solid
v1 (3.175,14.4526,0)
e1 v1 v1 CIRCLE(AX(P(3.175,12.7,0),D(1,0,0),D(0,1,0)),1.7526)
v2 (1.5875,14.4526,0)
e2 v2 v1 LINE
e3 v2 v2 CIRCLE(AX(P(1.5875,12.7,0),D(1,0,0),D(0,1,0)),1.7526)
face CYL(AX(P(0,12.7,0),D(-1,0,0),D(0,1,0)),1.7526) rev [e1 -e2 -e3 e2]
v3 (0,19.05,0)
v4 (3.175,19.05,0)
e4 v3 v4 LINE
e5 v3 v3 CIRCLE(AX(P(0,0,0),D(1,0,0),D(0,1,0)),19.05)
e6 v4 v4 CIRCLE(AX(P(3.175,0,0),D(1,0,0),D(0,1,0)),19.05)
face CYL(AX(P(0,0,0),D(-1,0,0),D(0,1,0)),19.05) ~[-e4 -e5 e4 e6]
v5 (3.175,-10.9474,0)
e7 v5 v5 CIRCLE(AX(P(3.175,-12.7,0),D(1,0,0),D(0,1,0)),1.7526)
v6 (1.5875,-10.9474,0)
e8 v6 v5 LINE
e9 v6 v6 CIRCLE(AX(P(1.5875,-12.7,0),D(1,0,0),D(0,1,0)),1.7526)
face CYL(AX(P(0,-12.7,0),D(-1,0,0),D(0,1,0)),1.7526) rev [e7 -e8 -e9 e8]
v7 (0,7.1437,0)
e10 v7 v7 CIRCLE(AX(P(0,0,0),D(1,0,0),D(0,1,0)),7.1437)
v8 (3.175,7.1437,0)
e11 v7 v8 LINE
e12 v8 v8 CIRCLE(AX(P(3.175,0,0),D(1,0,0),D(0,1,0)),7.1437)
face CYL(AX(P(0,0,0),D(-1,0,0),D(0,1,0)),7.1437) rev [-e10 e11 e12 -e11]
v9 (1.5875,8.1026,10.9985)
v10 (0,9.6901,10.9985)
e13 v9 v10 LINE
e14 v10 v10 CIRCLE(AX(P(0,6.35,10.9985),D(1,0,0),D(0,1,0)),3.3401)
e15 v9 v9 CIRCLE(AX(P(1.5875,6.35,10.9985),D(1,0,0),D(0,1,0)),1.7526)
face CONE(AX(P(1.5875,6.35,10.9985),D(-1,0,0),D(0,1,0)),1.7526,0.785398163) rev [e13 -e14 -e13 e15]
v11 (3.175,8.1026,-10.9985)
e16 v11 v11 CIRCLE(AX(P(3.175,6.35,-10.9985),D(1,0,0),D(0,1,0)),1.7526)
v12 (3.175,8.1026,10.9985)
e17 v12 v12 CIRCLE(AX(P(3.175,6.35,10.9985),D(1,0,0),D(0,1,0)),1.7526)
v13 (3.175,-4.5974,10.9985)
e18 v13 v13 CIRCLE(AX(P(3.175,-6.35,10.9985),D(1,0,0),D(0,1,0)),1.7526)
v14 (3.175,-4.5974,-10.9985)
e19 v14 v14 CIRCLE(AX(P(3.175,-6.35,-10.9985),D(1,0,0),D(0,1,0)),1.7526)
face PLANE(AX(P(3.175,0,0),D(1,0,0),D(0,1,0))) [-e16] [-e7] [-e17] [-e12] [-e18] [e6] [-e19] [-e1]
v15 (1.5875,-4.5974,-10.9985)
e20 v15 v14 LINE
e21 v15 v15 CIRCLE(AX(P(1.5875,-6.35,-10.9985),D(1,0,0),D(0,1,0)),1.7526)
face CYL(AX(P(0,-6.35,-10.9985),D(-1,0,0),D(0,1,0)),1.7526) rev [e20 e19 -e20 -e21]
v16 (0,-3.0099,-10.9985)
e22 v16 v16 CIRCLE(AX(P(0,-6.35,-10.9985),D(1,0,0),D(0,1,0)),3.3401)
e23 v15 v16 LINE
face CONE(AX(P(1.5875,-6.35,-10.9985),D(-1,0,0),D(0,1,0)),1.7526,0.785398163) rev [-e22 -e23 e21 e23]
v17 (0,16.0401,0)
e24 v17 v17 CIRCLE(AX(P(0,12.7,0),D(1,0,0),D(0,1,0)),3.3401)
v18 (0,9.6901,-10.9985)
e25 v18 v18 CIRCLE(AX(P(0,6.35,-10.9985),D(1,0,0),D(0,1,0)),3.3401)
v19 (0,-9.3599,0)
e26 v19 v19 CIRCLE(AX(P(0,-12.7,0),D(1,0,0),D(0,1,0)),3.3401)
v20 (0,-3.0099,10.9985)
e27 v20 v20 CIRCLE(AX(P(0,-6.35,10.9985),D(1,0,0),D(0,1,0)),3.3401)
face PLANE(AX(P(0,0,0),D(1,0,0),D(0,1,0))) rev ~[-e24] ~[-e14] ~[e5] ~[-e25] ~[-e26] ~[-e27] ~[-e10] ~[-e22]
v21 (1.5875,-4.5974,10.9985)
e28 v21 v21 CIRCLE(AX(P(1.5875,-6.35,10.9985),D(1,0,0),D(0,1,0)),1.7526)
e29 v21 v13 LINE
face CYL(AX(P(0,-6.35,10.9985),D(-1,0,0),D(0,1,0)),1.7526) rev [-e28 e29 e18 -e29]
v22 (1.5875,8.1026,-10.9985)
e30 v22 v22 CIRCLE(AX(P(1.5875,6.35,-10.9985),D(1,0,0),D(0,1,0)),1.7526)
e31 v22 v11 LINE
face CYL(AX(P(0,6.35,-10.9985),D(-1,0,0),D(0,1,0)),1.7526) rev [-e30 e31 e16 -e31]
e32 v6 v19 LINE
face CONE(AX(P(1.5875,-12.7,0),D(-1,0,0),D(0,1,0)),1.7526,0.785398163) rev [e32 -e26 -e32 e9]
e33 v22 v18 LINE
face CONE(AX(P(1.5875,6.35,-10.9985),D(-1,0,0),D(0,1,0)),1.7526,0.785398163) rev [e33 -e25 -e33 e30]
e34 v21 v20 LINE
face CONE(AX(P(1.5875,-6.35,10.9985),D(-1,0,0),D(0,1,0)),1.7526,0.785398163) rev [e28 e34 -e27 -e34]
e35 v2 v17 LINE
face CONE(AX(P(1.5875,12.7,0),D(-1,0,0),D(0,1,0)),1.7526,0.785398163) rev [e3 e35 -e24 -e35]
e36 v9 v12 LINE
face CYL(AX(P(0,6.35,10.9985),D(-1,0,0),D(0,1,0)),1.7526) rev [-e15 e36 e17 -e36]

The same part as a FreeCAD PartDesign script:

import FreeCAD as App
import Part
import Sketcher

V = App.Vector
Q = App.Units.Quantity


def edges_at(feature, points):
    """Names of the edges that pass closest to the given points."""
    edges = feature.Shape.Edges
    near = lambda p: min(range(len(edges)), key=lambda i: edges[i].distToShape(Part.Vertex(*p))[0])
    return sorted({f"Edge{near(p) + 1}" for p in points})

doc = App.newDocument("Part")
body = doc.addObject("PartDesign::Body", "Body")

# Sketch on YZ plane
sketch1 = doc.addObject("Sketcher::SketchObject", "Sketch")
body.addObject(sketch1)
sketch1.AttachmentSupport = (doc.YZ_Plane, [""])
sketch1.MapMode = "FlatFace"
sketch1.addGeometry(Part.Circle(V(0, 0, 0), V(0, 0, 1), 19.1), False)
sketch1.addGeometry(Part.Circle(V(-6.3, -11, 0), V(0, 0, 1), 1.8), False)
sketch1.addGeometry(Part.Circle(V(6.3, -11, 0), V(0, 0, 1), 1.8), False)
sketch1.addGeometry(Part.Circle(V(-12.7, 0, 0), V(0, 0, 1), 1.8), False)
sketch1.addGeometry(Part.Circle(V(-6.3, 11, 0), V(0, 0, 1), 1.8), False)
sketch1.addGeometry(Part.Circle(V(0, 0, 0), V(0, 0, 1), 7.1), False)
sketch1.addGeometry(Part.Circle(V(12.7, 0, 0), V(0, 0, 1), 1.8), False)
sketch1.addGeometry(Part.Circle(V(6.3, 11, 0), V(0, 0, 1), 1.8), False)
sketch1.addConstraint(Sketcher.Constraint("Coincident", 0, 3, -1, 1))
sketch1.addConstraint(Sketcher.Constraint("Coincident", 5, 3, -1, 1))
sketch1.addConstraint(Sketcher.Constraint("Equal", 1, 2))
sketch1.addConstraint(Sketcher.Constraint("Equal", 2, 3))
sketch1.addConstraint(Sketcher.Constraint("Equal", 3, 4))
sketch1.addConstraint(Sketcher.Constraint("Equal", 4, 6))
sketch1.addConstraint(Sketcher.Constraint("Equal", 6, 7))
sketch1.addConstraint(Sketcher.Constraint("Symmetric", 2, 3, 4, 3, -1, 1))
sketch1.addConstraint(Sketcher.Constraint("Symmetric", 3, 3, 6, 3, -1, 1))
sketch1.addConstraint(Sketcher.Constraint("Symmetric", 1, 3, 7, 3, -1, 1))
sketch1.addConstraint(Sketcher.Constraint("Symmetric", 1, 3, 2, 3, -2))
sketch1.addConstraint(Sketcher.Constraint("PointOnObject", 3, 3, -1))
sketch1.addConstraint(Sketcher.Constraint("Diameter", 0, Q("1.5 in")))
sketch1.addConstraint(Sketcher.Constraint("Diameter", 1, Q("0.138 in")))
sketch1.addConstraint(Sketcher.Constraint("Diameter", 5, Q("0.5625 in")))
sketch1.addConstraint(Sketcher.Constraint("DistanceX", 3, 3, -1, 1, Q("0.5 in")))
sketch1.addConstraint(Sketcher.Constraint("DistanceX", 1, 3, 2, 3, Q("0.5 in")))
sketch1.addConstraint(Sketcher.Constraint("DistanceY", 1, 3, -1, 1, Q("0.433 in")))
pad1 = doc.addObject("PartDesign::Pad", "Pad")
body.addObject(pad1)
pad1.Profile = sketch1
pad1.Length = Q("0.125 in")
doc.recompute()

chamfer = doc.addObject("PartDesign::Chamfer", "Chamfer")
body.addObject(chamfer)
chamfer.Base = (pad1, edges_at(pad1, [
    (0, 10.947, 0),
    (0, 4.597, 10.998),
    (0, -14.453, 0),
    (0, -8.103, 10.998),
    (0, 4.597, -10.998),
    (0, -8.103, -10.998),
]))
chamfer.Size = Q("0.0625 in")

doc.recompute()
